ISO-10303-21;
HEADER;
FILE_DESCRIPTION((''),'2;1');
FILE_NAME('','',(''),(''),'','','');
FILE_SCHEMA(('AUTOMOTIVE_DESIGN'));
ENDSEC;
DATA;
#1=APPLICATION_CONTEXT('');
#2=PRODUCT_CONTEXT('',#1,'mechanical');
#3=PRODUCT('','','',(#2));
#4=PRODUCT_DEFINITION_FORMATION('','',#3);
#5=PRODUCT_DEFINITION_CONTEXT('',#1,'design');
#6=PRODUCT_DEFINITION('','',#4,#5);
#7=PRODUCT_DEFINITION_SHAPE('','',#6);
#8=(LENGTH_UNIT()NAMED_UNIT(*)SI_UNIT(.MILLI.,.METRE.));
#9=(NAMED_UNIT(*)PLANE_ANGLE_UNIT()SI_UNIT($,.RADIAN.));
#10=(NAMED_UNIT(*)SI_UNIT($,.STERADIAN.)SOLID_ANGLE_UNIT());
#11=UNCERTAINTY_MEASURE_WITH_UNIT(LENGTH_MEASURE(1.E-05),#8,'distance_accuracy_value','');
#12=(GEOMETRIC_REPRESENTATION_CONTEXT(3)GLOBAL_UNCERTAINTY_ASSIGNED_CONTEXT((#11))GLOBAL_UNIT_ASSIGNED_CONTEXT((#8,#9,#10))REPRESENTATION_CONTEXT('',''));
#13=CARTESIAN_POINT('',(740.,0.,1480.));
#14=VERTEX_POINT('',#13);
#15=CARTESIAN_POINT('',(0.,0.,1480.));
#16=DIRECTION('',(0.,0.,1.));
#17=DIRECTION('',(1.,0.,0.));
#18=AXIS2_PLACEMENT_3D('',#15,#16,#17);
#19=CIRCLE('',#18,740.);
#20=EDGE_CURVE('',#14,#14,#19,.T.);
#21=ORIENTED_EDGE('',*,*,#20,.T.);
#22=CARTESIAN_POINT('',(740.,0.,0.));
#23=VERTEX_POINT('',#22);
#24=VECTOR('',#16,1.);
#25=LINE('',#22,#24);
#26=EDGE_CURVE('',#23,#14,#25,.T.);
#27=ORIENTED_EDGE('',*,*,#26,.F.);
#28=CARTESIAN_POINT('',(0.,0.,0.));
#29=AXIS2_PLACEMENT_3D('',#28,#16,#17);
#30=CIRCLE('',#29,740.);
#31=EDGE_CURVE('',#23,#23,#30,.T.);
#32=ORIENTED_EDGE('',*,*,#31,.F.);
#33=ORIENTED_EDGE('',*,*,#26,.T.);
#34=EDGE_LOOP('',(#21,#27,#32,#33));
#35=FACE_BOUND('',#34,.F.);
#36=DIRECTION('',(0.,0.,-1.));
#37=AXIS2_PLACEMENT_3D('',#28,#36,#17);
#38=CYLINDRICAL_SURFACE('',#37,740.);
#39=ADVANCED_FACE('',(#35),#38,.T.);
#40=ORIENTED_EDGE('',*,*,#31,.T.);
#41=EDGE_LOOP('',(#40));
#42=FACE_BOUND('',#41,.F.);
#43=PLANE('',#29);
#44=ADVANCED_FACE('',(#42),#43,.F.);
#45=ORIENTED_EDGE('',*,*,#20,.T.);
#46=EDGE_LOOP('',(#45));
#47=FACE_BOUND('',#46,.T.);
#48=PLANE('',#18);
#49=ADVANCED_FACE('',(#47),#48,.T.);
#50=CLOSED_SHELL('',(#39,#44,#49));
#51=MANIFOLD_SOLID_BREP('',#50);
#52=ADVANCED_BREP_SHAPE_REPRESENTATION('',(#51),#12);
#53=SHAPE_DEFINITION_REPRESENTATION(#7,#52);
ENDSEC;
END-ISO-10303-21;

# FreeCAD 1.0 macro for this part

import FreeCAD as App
import Part
import Sketcher

V = App.Vector

doc = App.newDocument("Part")
body = doc.addObject("PartDesign::Body", "Body")

# Sketch on XY plane
sketch1 = body.newObject("Sketcher::SketchObject", "Sketch")
sketch1.AttachmentSupport = (doc.getObject("XY_Plane"), [""])
sketch1.MapMode = "FlatFace"
sketch1.addGeometry(Part.Circle(V(0, 0, 0), V(0, 0, 1), 740), False)
sketch1.addConstraint(Sketcher.Constraint("Coincident", 0, 3, -1, 1))
sketch1.addConstraint(Sketcher.Constraint("Diameter", 0, 1480.0))
pad1 = body.newObject("PartDesign::Pad", "Pad")
pad1.Profile = sketch1
pad1.Length = 1480

doc.recompute()
